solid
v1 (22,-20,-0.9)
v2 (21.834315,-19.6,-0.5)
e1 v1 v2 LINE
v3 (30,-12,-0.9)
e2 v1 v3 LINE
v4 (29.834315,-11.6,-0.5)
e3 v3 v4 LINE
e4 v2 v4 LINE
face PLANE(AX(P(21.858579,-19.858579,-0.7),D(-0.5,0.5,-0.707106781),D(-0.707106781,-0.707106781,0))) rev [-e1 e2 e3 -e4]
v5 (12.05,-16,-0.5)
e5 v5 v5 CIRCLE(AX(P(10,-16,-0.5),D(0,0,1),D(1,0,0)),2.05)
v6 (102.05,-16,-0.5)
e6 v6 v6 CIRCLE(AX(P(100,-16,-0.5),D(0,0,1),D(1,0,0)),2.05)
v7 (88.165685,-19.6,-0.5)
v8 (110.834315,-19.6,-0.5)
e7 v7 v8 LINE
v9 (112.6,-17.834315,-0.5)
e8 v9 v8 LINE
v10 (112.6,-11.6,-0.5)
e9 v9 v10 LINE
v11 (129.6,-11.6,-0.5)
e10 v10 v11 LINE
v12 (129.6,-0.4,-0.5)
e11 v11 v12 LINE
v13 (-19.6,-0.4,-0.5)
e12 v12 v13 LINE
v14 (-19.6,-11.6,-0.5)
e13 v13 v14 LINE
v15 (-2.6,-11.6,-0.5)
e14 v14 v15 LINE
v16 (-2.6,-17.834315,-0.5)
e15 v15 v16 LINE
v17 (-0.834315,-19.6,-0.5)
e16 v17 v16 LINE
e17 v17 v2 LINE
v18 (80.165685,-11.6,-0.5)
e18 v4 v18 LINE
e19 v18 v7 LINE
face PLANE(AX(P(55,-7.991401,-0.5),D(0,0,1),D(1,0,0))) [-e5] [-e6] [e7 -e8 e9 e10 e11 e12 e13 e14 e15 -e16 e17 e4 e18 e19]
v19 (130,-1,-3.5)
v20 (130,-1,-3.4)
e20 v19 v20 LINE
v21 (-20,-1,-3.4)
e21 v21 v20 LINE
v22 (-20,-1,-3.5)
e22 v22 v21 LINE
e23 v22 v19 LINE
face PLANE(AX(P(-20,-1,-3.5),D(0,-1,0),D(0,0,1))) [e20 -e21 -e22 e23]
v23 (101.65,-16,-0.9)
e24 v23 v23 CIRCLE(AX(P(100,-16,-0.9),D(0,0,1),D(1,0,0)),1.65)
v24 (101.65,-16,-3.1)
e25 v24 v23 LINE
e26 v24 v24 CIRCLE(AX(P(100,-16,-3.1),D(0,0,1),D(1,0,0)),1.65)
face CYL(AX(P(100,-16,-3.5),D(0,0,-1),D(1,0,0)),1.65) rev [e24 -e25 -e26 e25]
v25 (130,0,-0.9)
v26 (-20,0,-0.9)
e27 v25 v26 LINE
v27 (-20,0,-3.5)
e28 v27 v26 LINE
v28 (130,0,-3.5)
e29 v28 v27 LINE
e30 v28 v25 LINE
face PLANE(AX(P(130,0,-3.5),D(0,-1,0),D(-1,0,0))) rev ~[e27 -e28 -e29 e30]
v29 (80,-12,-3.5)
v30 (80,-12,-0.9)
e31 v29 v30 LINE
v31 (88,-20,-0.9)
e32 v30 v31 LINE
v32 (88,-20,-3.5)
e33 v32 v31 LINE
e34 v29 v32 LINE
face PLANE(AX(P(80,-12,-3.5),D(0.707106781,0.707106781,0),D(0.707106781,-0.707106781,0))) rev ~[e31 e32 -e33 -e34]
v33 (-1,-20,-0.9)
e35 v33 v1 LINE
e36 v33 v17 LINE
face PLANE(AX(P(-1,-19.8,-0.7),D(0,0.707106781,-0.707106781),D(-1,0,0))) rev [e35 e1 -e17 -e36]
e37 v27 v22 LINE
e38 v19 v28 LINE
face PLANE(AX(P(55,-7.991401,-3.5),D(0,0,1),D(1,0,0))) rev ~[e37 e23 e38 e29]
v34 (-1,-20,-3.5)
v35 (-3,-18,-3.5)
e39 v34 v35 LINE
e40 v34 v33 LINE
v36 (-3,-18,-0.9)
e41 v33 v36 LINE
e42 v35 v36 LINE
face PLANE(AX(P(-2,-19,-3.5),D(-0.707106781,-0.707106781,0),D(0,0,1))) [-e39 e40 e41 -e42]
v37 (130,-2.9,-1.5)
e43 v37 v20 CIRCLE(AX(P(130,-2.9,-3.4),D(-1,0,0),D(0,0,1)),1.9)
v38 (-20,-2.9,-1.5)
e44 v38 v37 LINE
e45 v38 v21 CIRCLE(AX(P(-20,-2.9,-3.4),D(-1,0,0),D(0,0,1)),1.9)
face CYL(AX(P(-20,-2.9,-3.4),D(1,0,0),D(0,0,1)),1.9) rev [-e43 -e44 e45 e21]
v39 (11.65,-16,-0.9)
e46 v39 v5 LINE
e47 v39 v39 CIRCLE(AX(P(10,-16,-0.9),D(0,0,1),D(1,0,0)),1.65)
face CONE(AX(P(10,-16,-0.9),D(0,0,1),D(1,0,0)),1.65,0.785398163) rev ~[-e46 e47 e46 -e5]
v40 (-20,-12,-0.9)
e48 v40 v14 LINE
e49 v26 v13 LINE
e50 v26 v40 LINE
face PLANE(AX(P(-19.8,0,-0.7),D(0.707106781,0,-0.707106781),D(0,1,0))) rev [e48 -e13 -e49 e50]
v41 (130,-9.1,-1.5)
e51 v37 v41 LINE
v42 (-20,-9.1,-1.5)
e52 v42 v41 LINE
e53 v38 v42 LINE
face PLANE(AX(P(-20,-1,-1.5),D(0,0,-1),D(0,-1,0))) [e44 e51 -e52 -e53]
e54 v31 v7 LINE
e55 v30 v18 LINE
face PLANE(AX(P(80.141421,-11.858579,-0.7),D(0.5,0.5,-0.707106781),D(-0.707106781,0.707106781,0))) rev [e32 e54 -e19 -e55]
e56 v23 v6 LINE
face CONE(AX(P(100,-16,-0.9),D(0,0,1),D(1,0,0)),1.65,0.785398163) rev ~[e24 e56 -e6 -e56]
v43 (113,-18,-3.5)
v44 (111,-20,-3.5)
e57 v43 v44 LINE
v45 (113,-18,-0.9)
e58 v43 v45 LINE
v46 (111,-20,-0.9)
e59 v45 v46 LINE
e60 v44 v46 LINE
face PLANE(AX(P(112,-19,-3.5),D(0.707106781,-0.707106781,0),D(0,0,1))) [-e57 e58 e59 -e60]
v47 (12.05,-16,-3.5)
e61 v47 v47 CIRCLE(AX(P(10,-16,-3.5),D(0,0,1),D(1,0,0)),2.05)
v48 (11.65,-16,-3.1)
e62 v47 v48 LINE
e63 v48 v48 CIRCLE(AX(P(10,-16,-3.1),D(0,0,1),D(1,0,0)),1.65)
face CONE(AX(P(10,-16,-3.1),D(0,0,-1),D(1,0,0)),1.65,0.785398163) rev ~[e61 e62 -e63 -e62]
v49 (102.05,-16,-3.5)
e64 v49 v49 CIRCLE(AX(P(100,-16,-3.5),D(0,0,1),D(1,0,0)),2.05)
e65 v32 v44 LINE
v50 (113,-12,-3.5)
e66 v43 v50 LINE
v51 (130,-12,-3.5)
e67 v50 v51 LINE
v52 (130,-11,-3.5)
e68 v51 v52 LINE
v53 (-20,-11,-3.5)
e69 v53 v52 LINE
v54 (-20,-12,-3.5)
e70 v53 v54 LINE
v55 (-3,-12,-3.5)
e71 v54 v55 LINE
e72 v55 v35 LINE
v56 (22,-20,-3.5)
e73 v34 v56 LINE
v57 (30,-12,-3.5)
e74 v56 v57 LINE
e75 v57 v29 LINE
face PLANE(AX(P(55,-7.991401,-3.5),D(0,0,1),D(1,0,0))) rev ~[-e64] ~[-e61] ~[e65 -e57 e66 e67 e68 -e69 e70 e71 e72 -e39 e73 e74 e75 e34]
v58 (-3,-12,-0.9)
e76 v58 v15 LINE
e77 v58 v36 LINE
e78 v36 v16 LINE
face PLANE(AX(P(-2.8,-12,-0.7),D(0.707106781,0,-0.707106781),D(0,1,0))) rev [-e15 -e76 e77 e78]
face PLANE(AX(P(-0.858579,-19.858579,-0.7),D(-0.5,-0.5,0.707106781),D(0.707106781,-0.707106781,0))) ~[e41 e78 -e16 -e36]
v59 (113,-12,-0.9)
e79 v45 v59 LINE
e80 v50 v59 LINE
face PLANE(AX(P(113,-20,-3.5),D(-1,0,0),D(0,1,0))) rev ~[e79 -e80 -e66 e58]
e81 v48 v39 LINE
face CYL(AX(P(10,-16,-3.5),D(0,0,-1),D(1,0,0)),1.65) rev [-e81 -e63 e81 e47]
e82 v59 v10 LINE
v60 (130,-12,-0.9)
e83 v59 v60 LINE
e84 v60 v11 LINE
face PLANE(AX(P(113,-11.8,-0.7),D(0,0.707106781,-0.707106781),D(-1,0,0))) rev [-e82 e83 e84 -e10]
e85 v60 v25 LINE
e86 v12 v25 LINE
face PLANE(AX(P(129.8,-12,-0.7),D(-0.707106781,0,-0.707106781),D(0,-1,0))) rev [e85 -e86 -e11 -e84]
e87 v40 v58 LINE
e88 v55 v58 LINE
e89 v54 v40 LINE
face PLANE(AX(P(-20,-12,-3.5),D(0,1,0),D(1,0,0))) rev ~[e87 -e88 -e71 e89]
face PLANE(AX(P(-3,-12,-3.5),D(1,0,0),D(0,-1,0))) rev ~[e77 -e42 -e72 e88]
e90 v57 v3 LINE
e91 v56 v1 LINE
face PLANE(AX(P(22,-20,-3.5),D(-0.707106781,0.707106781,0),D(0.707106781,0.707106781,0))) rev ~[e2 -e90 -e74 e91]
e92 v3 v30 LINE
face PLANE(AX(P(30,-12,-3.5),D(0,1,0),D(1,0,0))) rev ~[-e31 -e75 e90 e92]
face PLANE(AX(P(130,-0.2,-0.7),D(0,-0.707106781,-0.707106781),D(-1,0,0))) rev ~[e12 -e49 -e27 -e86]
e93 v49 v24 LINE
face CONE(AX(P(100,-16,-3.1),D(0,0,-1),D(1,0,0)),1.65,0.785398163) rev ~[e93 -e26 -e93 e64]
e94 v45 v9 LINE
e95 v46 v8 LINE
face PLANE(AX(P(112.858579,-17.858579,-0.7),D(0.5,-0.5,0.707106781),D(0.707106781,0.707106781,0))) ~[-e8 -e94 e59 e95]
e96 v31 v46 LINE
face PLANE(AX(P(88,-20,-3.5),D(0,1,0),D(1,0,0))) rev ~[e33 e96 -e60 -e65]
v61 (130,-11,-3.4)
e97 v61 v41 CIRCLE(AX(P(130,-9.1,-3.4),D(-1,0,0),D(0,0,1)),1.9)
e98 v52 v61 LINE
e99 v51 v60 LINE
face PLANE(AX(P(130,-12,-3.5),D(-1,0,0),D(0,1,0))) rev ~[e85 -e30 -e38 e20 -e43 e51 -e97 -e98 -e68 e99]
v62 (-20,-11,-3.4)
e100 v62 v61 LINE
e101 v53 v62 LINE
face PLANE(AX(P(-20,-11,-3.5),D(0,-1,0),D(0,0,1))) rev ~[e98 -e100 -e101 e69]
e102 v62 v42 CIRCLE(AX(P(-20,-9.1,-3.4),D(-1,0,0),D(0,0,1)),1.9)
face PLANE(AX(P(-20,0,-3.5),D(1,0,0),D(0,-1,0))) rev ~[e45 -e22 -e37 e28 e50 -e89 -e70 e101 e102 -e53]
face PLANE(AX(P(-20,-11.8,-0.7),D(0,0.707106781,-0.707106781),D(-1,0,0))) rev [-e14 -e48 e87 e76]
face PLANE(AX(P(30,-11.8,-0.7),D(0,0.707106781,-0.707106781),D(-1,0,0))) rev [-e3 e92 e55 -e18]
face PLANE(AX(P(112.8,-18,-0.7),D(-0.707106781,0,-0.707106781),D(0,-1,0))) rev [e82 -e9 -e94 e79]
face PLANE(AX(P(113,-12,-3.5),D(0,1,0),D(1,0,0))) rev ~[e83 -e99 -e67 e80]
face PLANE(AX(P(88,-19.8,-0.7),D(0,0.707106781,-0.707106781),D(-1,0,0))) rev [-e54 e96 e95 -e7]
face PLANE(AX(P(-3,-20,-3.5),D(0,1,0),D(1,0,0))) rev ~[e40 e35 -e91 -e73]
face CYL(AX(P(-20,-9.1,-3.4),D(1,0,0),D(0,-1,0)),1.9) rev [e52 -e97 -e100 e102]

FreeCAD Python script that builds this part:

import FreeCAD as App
import Part
import Sketcher


def edges_at(feature, points):
    """Names of the edges that pass closest to the given points."""
    edges = feature.Shape.Edges
    near = lambda p: min(range(len(edges)), key=lambda i: edges[i].distToShape(Part.Vertex(*p))[0])
    return sorted({f"Edge{near(p) + 1}" for p in points})

doc = App.newDocument("Part")
params = doc.addObject("Spreadsheet::Sheet", "Params")
for row, (alias, value) in enumerate([
    ("sketch1_diameter", "3.3 mm"),
    ("sketch1_width", "150 mm"),
    ("sketch1_width2", "17 mm"),
    ("sketch1_width3", "25 mm"),
    ("sketch1_width4", "50 mm"),
    ("pad1_length", "3 mm"),
    ("sketch2_width", "10 mm"),
    ("sketch2_height", "2 mm"),
    ("fillet_radius", "1.9 mm"),
    ("chamfer_size", "2 mm"),
    ("chamfer2_size", "0.4 mm"),
], start=1):
    params.set(f"A{row}", alias)
    params.set(f"B{row}", "=" + value)
    params.setAlias(f"B{row}", alias)

body = doc.addObject("PartDesign::Body", "Body")

# Sketch on XY plane
sketch1 = body.newObject("Sketcher::SketchObject", "Sketch")
sketch1.AttachmentSupport = (doc.getObject("XY_Plane"), [""])
sketch1.MapMode = "FlatFace"
sketch1.AttachmentOffset = App.Placement(App.Vector(0, 0, -3.5), App.Rotation())
sketch1.addGeometry([
    Part.LineSegment(App.Vector(130, 0, 0), App.Vector(-20, 0, 0)),  # 0
    Part.LineSegment(App.Vector(-20, 0, 0), App.Vector(-20, -12, 0)),  # 1
    Part.LineSegment(App.Vector(-20, -12, 0), App.Vector(-3, -12, 0)),  # 2
    Part.LineSegment(App.Vector(-3, -12, 0), App.Vector(-3, -20, 0)),  # 3
    Part.LineSegment(App.Vector(-3, -20, 0), App.Vector(22, -20, 0)),  # 4
    Part.LineSegment(App.Vector(22, -20, 0), App.Vector(30, -12, 0)),  # 5
    Part.LineSegment(App.Vector(30, -12, 0), App.Vector(80, -12, 0)),  # 6
    Part.LineSegment(App.Vector(80, -12, 0), App.Vector(88, -20, 0)),  # 7
    Part.LineSegment(App.Vector(88, -20, 0), App.Vector(113, -20, 0)),  # 8
    Part.LineSegment(App.Vector(113, -20, 0), App.Vector(113, -12, 0)),  # 9
    Part.LineSegment(App.Vector(113, -12, 0), App.Vector(130, -12, 0)),  # 10
    Part.LineSegment(App.Vector(130, -12, 0), App.Vector(130, 0, 0)),  # 11
    Part.Circle(App.Vector(10, -16, 0), App.Vector(0, 0, 1), 1.6),  # 12
    Part.Circle(App.Vector(100, -16, 0), App.Vector(0, 0, 1), 1.6),  # 13
], False)
sketch1.addConstraint([
    Sketcher.Constraint("Coincident", 0, 2, 1, 1),
    Sketcher.Constraint("Coincident", 1, 2, 2, 1),
    Sketcher.Constraint("Coincident", 2, 2, 3, 1),
    Sketcher.Constraint("Coincident", 3, 2, 4, 1),
    Sketcher.Constraint("Coincident", 4, 2, 5, 1),
    Sketcher.Constraint("Coincident", 5, 2, 6, 1),
    Sketcher.Constraint("Coincident", 6, 2, 7, 1),
    Sketcher.Constraint("Coincident", 7, 2, 8, 1),
    Sketcher.Constraint("Coincident", 8, 2, 9, 1),
    Sketcher.Constraint("Coincident", 9, 2, 10, 1),
    Sketcher.Constraint("Coincident", 10, 2, 11, 1),
    Sketcher.Constraint("Coincident", 11, 2, 0, 1),
    Sketcher.Constraint("Horizontal", 0),
    Sketcher.Constraint("Vertical", 1),
    Sketcher.Constraint("Horizontal", 2),
    Sketcher.Constraint("Vertical", 3),
    Sketcher.Constraint("Horizontal", 4),
    Sketcher.Constraint("Horizontal", 6),
    Sketcher.Constraint("Horizontal", 8),
    Sketcher.Constraint("Vertical", 9),
    Sketcher.Constraint("Horizontal", 10),
    Sketcher.Constraint("Vertical", 11),
    Sketcher.Constraint("Equal", 12, 13),
    Sketcher.Constraint("PointOnObject", 0, 2, -1),
    Sketcher.Constraint("Perpendicular", 5, 7),
    Sketcher.Constraint("Horizontal", 12, 3, 13, 3),
    Sketcher.Constraint("Horizontal", 2, 2, 5, 2),
    Sketcher.Constraint("Horizontal", 4, 2, 7, 2),
    Sketcher.Constraint("Horizontal", 6, 2, 9, 2),
    Sketcher.Constraint("Equal", 4, 8),
    Sketcher.Constraint("Equal", 2, 10),
    Sketcher.Constraint("Equal", 5, 7),
    Sketcher.Constraint("Diameter", 12, 3.3),
    Sketcher.Constraint("DistanceX", 0, 2, 0, 1, 150.0),
    Sketcher.Constraint("DistanceX", 2, 1, 2, 2, 17.0),
    Sketcher.Constraint("DistanceX", 4, 1, 4, 2, 25.0),
    Sketcher.Constraint("DistanceX", 6, 1, 6, 2, 50.0),
    Sketcher.Constraint("DistanceY", 1, 2, 1, 1, 12.0),
    Sketcher.Constraint("DistanceX", -1, 1, 12, 3, 10.0),
    Sketcher.Constraint("DistanceY", 12, 3, -1, 1, 16.0),
    Sketcher.Constraint("DistanceX", -1, 1, 13, 3, 100.0),
    Sketcher.Constraint("DistanceX", 0, 2, -1, 1, 20.0),
])
sketch1.setExpression("Constraints[32]", "Params.sketch1_diameter")
sketch1.setExpression("Constraints[33]", "Params.sketch1_width")
sketch1.setExpression("Constraints[34]", "Params.sketch1_width2")
sketch1.setExpression("Constraints[35]", "Params.sketch1_width3")
sketch1.setExpression("Constraints[36]", "Params.sketch1_width4")
pad1 = body.newObject("PartDesign::Pad", "Pad")
pad1.Profile = sketch1
pad1.setExpression("Length", "Params.pad1_length")

# Sketch on YZ plane
sketch2 = body.newObject("Sketcher::SketchObject", "Sketch001")
sketch2.AttachmentSupport = (doc.getObject("YZ_Plane"), [""])
sketch2.MapMode = "FlatFace"
sketch2.AttachmentOffset = App.Placement(App.Vector(0, 0, -20), App.Rotation())
sketch2.addGeometry([
    Part.LineSegment(App.Vector(-1, -1.5, 0), App.Vector(-1, -3.5, 0)),
    Part.LineSegment(App.Vector(-1, -3.5, 0), App.Vector(-11, -3.5, 0)),
    Part.LineSegment(App.Vector(-11, -3.5, 0), App.Vector(-11, -1.5, 0)),
    Part.LineSegment(App.Vector(-11, -1.5, 0), App.Vector(-1, -1.5, 0)),
], False)
sketch2.addConstraint([
    Sketcher.Constraint("Coincident", 0, 2, 1, 1),
    Sketcher.Constraint("Coincident", 1, 2, 2, 1),
    Sketcher.Constraint("Coincident", 2, 2, 3, 1),
    Sketcher.Constraint("Coincident", 3, 2, 0, 1),
    Sketcher.Constraint("Vertical", 0),
    Sketcher.Constraint("Horizontal", 1),
    Sketcher.Constraint("Vertical", 2),
    Sketcher.Constraint("Horizontal", 3),
    Sketcher.Constraint("DistanceX", 1, 2, 1, 1, 10.0),
    Sketcher.Constraint("DistanceY", 0, 2, 0, 1, 2.0),
    Sketcher.Constraint("DistanceX", 0, 2, -1, 1, 1.0),
    Sketcher.Constraint("DistanceY", 0, 2, -1, 1, 3.5),
])
sketch2.setExpression("Constraints[8]", "Params.sketch2_width")
sketch2.setExpression("Constraints[9]", "Params.sketch2_height")
pocket1 = body.newObject("PartDesign::Pocket", "Pocket")
pocket1.Profile = sketch2
pocket1.Type = "ThroughAll"
pocket1.Reversed = True
doc.recompute()

fillet = body.newObject("PartDesign::Fillet", "Fillet")
fillet.Base = (pocket1, edges_at(pocket1, [(55, -1, -1.5), (55, -11, -1.5)]))
fillet.setExpression("Radius", "Params.fillet_radius")
doc.recompute()

chamfer = body.newObject("PartDesign::Chamfer", "Chamfer")
chamfer.Base = (fillet, edges_at(fillet, [(-3, -20, -2), (113, -20, -2)]))
chamfer.setExpression("Size", "Params.chamfer_size")
doc.recompute()

chamfer2 = body.newObject("PartDesign::Chamfer", "Chamfer001")
chamfer2.Base = (chamfer, edges_at(chamfer, [
    (-3, -15, -0.5),
    (-2, -19, -0.5),
    (-11.5, -12, -0.5),
    (10.5, -20, -0.5),
    (-20, -6, -0.5),
    (26, -16, -0.5),
    (55, 0, -0.5),
    (55, -12, -0.5),
    (130, -6, -0.5),
    (84, -16, -0.5),
    (121.5, -12, -0.5),
    (99.5, -20, -0.5),
    (113, -15, -0.5),
    (112, -19, -0.5),
    (8.35, -16, -0.5),
    (98.35, -16, -0.5),
    (8.35, -16, -3.5),
    (98.35, -16, -3.5),
]))
chamfer2.setExpression("Size", "Params.chamfer2_size")

doc.recompute()
